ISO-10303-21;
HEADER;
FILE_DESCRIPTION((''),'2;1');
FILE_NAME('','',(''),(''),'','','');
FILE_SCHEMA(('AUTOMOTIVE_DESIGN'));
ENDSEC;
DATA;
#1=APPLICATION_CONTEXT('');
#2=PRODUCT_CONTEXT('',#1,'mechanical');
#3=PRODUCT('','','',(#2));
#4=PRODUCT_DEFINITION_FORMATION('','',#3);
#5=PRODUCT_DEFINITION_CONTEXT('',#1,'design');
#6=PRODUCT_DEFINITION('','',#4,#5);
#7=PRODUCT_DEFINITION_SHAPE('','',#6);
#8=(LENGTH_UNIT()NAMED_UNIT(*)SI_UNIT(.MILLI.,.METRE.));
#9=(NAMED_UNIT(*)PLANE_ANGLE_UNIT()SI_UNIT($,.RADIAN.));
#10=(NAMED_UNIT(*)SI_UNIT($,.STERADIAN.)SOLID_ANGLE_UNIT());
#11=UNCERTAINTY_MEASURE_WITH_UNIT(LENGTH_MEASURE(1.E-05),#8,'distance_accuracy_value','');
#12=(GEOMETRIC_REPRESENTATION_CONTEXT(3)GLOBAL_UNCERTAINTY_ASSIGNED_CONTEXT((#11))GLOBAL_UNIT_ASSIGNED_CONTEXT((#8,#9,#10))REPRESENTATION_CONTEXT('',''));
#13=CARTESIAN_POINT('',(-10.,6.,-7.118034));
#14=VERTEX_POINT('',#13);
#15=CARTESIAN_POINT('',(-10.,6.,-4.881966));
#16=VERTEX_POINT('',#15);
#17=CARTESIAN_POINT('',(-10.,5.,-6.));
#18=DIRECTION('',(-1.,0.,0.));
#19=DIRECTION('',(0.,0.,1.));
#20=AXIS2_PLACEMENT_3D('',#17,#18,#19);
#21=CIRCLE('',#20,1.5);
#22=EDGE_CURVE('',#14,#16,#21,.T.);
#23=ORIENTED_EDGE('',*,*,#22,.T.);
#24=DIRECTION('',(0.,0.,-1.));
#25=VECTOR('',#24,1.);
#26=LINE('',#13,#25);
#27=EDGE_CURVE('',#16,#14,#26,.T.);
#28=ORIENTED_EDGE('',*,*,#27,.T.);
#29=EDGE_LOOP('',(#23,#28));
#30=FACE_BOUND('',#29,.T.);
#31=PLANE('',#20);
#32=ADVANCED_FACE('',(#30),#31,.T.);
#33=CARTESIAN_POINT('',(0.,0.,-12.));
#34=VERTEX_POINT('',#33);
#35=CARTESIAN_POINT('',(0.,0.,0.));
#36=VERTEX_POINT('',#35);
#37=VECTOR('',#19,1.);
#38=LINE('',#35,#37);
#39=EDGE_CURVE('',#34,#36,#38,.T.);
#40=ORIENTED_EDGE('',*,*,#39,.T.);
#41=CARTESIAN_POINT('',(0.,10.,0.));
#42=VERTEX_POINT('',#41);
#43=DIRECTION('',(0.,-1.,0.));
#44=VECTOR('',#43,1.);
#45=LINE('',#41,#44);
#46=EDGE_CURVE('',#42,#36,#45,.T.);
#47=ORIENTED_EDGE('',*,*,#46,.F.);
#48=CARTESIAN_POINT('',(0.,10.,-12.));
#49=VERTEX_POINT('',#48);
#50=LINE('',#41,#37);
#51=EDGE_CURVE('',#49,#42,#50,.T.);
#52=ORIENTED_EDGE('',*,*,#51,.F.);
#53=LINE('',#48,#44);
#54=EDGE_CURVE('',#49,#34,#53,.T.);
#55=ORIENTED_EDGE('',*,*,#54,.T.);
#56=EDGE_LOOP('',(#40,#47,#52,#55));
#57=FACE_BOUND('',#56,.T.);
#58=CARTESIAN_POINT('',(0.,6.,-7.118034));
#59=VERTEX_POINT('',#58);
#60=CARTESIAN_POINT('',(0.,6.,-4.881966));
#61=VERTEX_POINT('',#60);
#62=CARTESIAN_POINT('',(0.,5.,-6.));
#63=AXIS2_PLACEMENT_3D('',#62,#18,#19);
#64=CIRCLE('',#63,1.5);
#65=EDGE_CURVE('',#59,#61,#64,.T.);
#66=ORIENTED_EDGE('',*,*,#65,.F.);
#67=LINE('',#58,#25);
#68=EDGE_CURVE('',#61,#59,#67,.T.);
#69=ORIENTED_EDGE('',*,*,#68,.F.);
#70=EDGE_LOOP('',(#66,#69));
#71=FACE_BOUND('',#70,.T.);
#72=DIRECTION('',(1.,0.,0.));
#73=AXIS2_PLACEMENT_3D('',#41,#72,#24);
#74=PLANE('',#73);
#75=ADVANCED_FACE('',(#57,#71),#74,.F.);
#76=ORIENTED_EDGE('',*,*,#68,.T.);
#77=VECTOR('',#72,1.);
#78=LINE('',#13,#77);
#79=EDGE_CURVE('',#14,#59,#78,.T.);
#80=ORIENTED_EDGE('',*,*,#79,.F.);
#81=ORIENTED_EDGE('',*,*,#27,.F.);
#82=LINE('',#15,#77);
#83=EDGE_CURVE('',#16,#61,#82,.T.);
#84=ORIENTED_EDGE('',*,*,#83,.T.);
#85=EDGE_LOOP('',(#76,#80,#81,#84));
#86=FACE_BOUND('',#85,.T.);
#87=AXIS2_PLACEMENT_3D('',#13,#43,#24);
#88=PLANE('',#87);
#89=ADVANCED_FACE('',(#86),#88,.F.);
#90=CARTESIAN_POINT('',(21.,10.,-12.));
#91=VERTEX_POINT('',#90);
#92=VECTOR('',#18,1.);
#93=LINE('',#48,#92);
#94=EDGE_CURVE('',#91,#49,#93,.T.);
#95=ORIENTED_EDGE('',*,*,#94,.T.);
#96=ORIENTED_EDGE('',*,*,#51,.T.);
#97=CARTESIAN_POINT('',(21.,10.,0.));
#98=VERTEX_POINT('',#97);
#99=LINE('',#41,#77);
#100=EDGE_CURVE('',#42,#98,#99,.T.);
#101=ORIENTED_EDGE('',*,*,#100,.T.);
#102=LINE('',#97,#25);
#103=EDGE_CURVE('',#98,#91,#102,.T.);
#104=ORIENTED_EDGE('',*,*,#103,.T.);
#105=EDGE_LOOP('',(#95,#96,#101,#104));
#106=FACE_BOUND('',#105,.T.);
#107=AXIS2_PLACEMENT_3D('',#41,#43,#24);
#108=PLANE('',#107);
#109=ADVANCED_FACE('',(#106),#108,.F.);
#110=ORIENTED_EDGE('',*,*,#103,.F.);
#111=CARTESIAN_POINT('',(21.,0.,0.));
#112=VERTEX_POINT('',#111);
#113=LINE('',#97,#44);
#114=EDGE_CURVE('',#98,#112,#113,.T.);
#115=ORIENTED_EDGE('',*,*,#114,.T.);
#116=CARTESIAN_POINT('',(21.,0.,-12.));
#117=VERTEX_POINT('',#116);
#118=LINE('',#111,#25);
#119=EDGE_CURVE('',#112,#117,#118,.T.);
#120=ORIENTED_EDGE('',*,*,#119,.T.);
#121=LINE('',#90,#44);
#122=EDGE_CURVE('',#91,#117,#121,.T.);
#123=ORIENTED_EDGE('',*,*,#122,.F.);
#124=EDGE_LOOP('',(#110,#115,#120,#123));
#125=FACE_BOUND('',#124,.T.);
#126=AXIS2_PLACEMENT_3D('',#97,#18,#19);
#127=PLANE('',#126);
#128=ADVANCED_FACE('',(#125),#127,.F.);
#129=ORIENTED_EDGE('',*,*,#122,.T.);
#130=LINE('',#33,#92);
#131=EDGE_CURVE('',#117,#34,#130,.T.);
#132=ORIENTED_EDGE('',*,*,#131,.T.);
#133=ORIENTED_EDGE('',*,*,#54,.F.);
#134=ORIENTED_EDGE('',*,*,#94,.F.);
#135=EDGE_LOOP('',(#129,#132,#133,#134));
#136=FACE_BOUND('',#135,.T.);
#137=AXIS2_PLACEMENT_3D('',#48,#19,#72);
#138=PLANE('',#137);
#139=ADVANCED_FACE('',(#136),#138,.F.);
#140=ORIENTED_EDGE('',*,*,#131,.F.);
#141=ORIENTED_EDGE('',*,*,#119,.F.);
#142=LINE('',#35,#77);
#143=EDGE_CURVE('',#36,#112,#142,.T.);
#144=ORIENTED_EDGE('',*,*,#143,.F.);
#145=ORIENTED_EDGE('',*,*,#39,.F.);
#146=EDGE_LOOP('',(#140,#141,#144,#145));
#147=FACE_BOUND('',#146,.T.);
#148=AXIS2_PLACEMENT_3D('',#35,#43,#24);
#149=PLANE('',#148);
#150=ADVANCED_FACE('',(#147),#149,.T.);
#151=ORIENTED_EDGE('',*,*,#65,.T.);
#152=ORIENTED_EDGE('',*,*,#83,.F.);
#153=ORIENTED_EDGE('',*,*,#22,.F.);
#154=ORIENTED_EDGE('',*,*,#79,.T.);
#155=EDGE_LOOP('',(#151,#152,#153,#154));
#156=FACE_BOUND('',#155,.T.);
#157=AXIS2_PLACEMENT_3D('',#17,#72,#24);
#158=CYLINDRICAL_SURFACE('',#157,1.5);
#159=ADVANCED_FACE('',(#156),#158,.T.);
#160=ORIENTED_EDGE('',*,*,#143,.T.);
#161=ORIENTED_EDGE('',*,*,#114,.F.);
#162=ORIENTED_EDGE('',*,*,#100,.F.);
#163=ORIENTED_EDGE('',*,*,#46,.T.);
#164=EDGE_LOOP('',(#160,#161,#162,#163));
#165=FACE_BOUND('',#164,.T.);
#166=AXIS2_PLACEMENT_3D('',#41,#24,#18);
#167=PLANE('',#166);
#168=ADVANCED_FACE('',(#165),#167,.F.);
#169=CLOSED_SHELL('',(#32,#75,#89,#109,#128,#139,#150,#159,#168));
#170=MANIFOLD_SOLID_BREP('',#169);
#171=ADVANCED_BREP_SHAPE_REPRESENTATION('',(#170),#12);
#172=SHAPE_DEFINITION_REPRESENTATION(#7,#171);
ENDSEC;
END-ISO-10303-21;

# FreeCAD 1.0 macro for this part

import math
import FreeCAD as App
import Part
import Sketcher

V = App.Vector
Q = App.Units.Quantity


def add_polygon(sketch, points):
    """Adds a closed chain of lines whose ends are joined by coincident constraints."""
    first, n = sketch.GeometryCount, len(points)
    for a, b in zip(points, points[1:] + points[:1]):
        sketch.addGeometry(Part.LineSegment(App.Vector(*a, 0), App.Vector(*b, 0)), False)
    for i in range(n):
        sketch.addConstraint(Sketcher.Constraint("Coincident", first + i, 2, first + (i + 1) % n, 1))

doc = App.newDocument("Part")
params = doc.addObject("Spreadsheet::Sheet", "Params")
for row, (alias, value) in enumerate([
    ("sketch1_width", "21 mm"),
    ("sketch1_height", "12 mm"),
    ("pad1_length", "10 mm"),
    ("sketch2_radius", "1.5 mm"),
    ("pad2_length", "10 mm"),
], start=1):
    params.set(f"A{row}", alias)
    params.set(f"B{row}", "=" + value)
    params.setAlias(f"B{row}", alias)

body = doc.addObject("PartDesign::Body", "Body")

# Sketch on XZ plane
sketch1 = body.newObject("Sketcher::SketchObject", "Sketch")
sketch1.AttachmentSupport = (doc.getObject("XZ_Plane"), [""])
sketch1.MapMode = "FlatFace"
add_polygon(sketch1, [(0, -12), (0, 0), (21, 0), (21, -12)])  # lines 0-3
sketch1.addConstraint(Sketcher.Constraint("Vertical", 0))
sketch1.addConstraint(Sketcher.Constraint("Horizontal", 1))
sketch1.addConstraint(Sketcher.Constraint("Vertical", 2))
sketch1.addConstraint(Sketcher.Constraint("Horizontal", 3))
sketch1.addConstraint(Sketcher.Constraint("Coincident", 0, 2, -1, 1))
sketch1.addConstraint(Sketcher.Constraint("DistanceX", 1, 1, 1, 2, Q("21 mm")))
sketch1.addConstraint(Sketcher.Constraint("DistanceY", 0, 1, 0, 2, Q("12 mm")))
sketch1.setExpression("Constraints[9]", "Params.sketch1_width")
sketch1.setExpression("Constraints[10]", "Params.sketch1_height")
pad1 = body.newObject("PartDesign::Pad", "Pad")
pad1.Profile = sketch1
pad1.setExpression("Length", "Params.pad1_length")
pad1.Reversed = True

# Sketch on YZ plane
sketch2 = body.newObject("Sketcher::SketchObject", "Sketch001")
sketch2.AttachmentSupport = (doc.getObject("YZ_Plane"), [""])
sketch2.MapMode = "FlatFace"
sketch2.addGeometry(Part.LineSegment(V(6, -4.9, 0), V(6, -7.1, 0)), False)
sketch2.addGeometry(Part.ArcOfCircle(Part.Circle(V(5, -6, 0), V(0, 0, 1), 1.5), math.radians(48), math.radians(312)), False)
sketch2.addConstraint(Sketcher.Constraint("Coincident", 0, 1, 1, 1))
sketch2.addConstraint(Sketcher.Constraint("Coincident", 1, 2, 0, 2))
sketch2.addConstraint(Sketcher.Constraint("Vertical", 0))
sketch2.addConstraint(Sketcher.Constraint("Radius", 1, Q("1.5 mm")))
sketch2.addConstraint(Sketcher.Constraint("DistanceX", -1, 1, 1, 3, Q("5 mm")))
sketch2.addConstraint(Sketcher.Constraint("DistanceY", 1, 3, -1, 1, Q("6 mm")))
sketch2.addConstraint(Sketcher.Constraint("DistanceX", -1, 1, 0, 1, Q("6 mm")))
sketch2.setExpression("Constraints[3]", "Params.sketch2_radius")
pad2 = body.newObject("PartDesign::Pad", "Pad001")
pad2.Profile = sketch2
pad2.setExpression("Length", "Params.pad2_length")
pad2.Reversed = True

doc.recompute()
